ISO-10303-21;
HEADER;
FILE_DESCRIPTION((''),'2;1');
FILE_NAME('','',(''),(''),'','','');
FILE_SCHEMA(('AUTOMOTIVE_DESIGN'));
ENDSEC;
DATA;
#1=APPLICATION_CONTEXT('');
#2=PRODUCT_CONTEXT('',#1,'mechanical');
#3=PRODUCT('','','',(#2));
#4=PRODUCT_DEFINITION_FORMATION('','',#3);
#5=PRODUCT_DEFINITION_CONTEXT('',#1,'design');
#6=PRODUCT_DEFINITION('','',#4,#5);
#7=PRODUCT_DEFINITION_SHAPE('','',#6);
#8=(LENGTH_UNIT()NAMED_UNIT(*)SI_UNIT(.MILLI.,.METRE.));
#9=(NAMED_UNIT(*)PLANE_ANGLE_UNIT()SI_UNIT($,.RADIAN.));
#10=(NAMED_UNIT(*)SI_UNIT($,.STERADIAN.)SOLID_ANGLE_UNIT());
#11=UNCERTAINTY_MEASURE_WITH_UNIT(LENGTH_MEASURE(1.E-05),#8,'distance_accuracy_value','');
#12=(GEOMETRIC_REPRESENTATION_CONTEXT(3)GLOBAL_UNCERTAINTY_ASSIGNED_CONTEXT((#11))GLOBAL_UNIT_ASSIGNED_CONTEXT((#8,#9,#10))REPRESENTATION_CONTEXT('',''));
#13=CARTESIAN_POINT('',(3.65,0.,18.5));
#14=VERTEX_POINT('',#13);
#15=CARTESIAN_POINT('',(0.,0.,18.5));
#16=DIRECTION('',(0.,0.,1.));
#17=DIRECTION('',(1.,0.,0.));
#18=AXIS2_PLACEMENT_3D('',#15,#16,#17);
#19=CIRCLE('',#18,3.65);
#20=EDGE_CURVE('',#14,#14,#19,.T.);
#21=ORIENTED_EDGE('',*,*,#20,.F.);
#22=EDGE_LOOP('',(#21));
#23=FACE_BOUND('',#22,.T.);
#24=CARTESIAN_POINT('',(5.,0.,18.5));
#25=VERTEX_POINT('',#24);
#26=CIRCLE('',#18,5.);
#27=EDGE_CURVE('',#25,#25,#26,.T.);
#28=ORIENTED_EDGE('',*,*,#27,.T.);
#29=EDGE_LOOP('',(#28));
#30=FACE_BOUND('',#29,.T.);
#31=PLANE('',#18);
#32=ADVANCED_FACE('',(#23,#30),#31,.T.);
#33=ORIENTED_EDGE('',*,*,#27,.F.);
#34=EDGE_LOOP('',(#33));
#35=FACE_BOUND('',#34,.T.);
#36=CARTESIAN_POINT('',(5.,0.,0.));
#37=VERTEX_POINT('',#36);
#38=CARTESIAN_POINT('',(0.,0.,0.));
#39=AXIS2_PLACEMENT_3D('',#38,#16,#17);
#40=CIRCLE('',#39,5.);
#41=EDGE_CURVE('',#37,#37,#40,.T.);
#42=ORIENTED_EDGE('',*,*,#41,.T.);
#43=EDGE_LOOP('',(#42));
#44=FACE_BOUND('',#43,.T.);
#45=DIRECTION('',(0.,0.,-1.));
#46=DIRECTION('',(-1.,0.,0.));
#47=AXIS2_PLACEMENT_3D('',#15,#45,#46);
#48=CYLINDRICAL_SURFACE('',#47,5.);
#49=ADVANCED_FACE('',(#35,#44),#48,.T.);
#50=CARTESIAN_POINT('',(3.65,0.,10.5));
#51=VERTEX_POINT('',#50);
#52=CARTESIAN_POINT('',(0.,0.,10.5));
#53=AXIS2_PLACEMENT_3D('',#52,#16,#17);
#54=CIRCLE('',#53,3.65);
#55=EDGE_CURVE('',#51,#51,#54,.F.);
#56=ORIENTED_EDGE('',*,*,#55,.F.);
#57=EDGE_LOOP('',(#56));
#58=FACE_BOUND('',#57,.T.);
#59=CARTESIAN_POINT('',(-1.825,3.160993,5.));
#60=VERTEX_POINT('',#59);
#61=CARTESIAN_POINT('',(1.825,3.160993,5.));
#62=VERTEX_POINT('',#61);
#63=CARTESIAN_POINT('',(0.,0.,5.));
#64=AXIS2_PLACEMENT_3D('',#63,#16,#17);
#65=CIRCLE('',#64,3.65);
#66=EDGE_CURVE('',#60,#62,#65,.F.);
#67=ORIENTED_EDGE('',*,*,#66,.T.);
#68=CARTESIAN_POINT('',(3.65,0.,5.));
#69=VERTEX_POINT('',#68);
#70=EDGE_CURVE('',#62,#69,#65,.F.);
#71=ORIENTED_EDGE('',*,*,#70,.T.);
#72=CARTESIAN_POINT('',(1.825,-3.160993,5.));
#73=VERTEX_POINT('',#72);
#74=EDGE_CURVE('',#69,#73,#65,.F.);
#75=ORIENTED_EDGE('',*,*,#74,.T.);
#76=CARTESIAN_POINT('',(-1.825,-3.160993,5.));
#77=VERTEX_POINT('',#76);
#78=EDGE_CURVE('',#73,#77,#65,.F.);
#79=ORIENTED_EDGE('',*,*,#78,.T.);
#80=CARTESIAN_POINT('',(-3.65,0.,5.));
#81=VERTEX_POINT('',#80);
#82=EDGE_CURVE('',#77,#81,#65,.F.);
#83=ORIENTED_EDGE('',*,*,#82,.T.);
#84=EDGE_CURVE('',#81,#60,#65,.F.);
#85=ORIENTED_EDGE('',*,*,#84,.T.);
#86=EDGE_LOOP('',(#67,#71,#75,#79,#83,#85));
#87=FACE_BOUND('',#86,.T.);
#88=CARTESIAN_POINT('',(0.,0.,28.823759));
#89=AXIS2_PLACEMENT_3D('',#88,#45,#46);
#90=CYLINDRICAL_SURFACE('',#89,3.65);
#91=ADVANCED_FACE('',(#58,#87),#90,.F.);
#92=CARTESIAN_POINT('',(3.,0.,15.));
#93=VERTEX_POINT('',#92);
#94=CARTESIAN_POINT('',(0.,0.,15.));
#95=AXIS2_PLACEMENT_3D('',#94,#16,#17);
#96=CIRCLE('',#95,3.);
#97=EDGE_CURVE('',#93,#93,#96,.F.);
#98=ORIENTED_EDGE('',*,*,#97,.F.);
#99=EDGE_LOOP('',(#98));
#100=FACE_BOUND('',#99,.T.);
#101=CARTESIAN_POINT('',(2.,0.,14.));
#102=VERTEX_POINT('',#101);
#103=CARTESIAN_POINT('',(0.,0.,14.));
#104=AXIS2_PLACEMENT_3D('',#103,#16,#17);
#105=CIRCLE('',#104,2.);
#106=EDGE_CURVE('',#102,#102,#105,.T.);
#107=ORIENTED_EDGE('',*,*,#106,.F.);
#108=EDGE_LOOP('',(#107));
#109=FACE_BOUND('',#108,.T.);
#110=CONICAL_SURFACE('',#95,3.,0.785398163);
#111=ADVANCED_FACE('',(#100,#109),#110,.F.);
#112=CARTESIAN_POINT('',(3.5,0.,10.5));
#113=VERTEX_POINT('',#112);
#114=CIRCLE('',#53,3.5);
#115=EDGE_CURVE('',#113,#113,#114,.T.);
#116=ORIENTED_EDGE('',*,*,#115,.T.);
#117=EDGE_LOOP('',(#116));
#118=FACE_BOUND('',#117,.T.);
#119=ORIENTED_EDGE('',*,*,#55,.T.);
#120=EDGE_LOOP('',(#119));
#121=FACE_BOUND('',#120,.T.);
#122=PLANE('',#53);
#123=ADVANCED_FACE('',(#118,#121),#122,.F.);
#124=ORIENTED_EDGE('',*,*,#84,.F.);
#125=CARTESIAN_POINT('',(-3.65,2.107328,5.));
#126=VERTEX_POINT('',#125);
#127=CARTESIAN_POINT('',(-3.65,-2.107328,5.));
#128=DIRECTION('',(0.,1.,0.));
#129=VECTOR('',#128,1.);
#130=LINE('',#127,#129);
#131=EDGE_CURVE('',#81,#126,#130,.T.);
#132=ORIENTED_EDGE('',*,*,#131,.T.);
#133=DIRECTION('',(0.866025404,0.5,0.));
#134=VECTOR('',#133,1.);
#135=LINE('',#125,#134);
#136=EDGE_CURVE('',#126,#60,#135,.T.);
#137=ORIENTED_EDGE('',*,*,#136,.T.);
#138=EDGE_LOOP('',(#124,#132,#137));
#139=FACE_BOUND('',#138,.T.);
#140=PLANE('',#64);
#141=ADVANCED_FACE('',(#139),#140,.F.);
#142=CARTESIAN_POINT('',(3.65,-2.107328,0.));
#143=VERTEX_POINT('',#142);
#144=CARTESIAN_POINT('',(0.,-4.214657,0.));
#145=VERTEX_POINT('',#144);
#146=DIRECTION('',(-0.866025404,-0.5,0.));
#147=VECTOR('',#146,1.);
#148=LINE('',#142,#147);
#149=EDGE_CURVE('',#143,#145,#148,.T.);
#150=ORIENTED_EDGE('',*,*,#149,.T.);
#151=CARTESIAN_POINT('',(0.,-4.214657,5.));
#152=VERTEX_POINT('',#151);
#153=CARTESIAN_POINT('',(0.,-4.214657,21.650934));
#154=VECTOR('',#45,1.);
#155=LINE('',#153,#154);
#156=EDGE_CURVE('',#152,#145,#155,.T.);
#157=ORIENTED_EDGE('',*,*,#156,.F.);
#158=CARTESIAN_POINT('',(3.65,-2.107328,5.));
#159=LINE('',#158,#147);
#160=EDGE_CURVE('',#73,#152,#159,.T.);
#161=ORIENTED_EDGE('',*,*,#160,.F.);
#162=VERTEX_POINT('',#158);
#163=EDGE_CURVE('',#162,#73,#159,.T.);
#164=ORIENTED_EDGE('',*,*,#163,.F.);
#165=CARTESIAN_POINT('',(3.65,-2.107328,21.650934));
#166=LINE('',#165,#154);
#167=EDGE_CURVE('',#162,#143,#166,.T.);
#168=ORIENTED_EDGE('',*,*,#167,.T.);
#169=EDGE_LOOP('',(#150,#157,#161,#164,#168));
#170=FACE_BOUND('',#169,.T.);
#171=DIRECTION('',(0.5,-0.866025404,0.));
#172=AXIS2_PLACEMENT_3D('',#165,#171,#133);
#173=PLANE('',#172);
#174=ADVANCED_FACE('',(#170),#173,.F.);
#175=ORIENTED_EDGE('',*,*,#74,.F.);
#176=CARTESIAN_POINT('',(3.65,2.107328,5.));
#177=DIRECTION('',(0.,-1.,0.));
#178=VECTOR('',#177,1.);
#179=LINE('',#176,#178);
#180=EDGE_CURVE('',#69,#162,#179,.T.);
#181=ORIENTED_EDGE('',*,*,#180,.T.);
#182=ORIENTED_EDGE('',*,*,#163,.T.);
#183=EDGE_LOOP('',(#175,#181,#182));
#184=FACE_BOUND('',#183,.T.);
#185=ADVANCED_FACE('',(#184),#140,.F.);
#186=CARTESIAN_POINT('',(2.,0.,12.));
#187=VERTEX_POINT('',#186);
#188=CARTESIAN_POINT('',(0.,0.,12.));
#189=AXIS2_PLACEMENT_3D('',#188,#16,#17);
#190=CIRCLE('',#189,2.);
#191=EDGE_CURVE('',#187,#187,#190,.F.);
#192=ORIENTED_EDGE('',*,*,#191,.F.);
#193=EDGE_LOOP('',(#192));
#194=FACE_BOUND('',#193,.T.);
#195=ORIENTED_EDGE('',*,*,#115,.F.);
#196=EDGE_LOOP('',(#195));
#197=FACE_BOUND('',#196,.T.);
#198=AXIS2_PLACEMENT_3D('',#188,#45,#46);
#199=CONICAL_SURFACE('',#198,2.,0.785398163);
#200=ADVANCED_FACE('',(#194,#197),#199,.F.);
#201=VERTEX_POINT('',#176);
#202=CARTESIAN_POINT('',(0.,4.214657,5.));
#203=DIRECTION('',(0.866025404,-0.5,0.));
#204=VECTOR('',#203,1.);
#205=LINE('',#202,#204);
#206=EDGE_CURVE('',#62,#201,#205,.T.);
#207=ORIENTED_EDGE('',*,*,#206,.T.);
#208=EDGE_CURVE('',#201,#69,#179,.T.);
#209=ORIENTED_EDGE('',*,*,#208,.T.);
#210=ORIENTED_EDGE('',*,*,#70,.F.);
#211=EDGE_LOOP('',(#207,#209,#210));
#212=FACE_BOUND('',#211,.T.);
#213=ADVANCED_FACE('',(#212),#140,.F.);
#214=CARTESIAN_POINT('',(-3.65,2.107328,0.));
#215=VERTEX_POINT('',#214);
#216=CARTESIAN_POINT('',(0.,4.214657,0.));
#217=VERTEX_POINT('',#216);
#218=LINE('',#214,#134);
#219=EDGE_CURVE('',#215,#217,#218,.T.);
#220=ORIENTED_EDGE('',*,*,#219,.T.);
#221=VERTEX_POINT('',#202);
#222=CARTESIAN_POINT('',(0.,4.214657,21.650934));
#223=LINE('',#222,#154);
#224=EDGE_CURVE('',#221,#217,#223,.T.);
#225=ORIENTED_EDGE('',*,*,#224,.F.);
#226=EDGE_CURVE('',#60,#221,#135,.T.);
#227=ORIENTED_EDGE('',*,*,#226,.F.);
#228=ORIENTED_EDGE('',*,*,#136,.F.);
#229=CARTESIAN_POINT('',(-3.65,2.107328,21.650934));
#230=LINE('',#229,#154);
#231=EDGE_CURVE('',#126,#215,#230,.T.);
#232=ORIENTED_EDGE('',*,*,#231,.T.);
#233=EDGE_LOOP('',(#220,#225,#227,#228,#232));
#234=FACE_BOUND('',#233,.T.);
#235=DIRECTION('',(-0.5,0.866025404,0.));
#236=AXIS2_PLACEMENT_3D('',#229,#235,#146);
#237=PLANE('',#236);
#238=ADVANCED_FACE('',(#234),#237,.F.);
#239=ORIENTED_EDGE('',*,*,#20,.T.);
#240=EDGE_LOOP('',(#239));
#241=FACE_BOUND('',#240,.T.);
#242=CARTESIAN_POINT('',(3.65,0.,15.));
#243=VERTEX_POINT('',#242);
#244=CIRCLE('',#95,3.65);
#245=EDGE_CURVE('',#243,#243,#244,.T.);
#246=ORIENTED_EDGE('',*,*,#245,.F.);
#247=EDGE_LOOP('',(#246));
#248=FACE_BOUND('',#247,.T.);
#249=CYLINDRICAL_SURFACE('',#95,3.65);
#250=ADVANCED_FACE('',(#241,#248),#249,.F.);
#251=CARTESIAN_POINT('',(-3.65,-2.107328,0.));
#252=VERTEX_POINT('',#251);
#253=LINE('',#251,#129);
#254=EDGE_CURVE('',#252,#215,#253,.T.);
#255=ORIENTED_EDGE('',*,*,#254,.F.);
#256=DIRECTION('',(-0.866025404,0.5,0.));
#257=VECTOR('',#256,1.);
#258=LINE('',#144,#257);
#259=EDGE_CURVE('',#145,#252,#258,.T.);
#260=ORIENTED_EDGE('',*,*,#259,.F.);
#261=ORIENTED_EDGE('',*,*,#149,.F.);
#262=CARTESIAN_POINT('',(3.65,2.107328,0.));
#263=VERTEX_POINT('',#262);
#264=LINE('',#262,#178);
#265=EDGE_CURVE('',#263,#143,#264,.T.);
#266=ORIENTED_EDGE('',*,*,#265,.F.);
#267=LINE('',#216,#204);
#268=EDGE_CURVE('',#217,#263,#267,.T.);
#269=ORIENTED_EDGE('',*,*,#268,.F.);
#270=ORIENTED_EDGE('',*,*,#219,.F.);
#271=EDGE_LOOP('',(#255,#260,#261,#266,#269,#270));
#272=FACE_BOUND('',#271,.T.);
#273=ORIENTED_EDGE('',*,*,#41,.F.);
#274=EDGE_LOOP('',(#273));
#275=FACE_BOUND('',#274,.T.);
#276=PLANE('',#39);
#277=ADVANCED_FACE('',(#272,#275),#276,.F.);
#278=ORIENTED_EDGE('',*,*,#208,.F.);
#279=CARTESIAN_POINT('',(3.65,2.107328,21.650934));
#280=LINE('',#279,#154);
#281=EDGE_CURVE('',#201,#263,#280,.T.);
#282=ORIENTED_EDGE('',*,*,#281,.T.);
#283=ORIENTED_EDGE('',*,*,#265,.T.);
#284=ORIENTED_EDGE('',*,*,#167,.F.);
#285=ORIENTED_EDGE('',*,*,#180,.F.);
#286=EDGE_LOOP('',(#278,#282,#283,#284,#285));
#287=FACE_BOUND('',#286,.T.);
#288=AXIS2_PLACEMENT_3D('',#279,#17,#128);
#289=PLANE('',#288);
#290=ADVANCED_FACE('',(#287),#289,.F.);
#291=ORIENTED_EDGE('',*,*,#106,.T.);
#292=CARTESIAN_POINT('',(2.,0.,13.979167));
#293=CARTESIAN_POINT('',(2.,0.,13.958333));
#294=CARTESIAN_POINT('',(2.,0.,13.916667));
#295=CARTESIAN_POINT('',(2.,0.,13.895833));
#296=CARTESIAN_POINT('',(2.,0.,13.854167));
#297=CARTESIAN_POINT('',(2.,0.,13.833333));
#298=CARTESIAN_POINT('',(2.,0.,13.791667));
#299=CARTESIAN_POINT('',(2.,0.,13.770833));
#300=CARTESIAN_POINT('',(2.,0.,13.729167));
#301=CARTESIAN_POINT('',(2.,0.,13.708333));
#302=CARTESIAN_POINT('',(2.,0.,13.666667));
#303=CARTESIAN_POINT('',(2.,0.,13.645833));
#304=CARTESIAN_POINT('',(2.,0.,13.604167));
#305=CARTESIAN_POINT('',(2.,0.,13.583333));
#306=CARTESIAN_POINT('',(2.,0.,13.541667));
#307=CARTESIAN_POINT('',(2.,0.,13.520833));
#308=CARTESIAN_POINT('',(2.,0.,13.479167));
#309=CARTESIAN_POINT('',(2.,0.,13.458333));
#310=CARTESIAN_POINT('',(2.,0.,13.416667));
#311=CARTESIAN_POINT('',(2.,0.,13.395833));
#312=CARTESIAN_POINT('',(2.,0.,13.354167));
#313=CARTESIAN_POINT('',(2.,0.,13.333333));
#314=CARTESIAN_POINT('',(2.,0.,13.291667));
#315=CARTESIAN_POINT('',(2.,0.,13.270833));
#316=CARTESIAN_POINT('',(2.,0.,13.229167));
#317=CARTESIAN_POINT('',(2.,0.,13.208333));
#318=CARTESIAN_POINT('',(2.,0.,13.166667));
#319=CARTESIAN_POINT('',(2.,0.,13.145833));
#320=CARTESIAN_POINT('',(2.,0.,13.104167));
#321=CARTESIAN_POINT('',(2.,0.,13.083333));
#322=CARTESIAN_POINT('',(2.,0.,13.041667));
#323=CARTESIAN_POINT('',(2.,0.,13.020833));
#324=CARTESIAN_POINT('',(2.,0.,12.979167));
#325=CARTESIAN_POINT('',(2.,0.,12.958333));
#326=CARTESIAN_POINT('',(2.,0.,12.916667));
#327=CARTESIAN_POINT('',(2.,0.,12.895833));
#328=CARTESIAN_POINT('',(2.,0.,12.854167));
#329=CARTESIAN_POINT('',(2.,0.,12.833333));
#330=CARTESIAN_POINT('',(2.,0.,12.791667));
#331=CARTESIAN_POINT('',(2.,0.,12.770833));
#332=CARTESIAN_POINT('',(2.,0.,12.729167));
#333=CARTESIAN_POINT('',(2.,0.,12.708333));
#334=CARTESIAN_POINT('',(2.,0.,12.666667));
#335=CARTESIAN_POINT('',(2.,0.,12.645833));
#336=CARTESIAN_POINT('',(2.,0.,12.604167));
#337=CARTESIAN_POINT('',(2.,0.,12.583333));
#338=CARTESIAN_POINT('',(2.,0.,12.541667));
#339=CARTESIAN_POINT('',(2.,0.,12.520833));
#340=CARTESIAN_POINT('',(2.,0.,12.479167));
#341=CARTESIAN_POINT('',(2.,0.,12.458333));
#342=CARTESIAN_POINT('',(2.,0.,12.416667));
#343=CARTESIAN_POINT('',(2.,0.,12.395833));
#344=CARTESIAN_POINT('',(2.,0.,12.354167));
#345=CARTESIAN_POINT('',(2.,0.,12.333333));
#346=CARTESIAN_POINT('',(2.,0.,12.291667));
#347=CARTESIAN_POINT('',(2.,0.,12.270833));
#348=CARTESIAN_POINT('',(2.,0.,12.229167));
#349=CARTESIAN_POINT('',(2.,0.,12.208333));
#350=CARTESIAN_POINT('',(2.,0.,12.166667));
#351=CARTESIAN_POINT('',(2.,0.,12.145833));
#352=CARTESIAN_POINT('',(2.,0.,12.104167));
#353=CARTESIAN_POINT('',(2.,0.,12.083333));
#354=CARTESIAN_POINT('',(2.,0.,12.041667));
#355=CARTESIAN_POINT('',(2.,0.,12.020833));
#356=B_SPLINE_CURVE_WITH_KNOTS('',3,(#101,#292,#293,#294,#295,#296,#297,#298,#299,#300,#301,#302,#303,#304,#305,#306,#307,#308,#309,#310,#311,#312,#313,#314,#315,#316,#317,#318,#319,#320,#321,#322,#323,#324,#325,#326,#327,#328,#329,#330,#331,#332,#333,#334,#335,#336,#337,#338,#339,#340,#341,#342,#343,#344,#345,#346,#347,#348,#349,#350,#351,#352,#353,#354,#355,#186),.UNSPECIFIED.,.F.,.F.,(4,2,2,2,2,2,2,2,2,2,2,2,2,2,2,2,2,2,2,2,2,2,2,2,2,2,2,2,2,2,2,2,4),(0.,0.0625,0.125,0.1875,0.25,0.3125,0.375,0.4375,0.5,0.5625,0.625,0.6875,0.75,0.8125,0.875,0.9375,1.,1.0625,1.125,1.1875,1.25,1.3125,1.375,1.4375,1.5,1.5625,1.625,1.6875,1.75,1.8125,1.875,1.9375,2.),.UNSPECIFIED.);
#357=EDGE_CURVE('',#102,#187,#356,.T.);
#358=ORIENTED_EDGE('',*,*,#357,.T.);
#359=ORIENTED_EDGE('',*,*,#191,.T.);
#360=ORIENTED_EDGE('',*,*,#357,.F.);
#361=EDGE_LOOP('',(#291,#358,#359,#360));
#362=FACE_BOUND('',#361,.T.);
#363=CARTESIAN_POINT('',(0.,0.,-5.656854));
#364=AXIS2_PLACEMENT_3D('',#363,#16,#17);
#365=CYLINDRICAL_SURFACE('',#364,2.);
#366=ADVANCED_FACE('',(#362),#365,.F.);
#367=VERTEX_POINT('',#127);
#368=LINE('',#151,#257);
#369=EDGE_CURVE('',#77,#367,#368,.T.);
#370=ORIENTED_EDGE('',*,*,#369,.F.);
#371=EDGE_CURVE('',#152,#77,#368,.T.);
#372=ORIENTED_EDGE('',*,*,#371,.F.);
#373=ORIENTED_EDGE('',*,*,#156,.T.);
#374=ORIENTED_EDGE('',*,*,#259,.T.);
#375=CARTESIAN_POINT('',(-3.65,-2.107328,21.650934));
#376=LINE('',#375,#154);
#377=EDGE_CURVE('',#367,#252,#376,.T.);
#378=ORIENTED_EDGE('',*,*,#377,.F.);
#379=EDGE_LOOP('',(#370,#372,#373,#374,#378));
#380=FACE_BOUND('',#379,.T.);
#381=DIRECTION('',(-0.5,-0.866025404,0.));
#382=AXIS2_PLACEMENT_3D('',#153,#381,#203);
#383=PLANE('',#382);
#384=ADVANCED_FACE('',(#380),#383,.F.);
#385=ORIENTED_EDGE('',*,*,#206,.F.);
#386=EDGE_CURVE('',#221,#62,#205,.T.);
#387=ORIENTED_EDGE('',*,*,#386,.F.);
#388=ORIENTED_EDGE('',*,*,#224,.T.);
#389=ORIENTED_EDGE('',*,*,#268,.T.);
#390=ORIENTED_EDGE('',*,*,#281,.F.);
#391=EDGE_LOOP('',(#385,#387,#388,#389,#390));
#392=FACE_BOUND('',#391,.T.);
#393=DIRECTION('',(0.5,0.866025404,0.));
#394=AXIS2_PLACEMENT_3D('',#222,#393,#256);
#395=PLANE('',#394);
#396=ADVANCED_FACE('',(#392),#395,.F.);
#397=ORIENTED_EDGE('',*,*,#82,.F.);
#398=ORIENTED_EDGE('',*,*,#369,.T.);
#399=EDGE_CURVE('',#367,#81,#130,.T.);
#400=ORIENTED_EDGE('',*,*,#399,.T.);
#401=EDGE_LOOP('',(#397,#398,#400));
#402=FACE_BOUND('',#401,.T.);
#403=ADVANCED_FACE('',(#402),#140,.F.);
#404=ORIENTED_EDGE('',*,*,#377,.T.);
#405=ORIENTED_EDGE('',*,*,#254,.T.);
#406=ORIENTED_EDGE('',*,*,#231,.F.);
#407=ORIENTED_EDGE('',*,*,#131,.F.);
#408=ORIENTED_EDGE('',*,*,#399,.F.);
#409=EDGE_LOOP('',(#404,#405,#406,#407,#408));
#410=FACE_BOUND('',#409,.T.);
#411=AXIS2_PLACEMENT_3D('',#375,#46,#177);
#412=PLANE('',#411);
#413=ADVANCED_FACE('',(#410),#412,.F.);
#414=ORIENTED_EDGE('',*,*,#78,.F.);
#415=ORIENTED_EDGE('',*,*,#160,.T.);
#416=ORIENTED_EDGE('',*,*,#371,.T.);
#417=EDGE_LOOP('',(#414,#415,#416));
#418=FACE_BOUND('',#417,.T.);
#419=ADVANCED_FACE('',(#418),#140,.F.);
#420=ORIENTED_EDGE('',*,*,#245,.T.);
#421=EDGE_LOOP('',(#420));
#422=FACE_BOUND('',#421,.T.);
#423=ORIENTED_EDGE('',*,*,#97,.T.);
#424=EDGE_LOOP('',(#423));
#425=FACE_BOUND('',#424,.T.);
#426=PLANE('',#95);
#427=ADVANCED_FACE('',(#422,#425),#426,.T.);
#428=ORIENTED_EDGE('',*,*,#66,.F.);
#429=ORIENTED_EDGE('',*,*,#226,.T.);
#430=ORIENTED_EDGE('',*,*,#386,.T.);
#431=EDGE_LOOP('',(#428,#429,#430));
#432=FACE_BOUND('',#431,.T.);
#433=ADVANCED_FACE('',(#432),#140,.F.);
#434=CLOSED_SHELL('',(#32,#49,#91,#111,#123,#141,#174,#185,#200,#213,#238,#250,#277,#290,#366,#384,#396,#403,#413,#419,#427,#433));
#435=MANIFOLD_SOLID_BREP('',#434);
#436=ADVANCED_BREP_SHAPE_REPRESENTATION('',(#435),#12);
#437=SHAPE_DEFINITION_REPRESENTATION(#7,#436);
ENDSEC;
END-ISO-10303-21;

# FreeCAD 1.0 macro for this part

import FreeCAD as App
import Part
import Sketcher
from FreeCAD import Vector
Q = App.Units.Quantity


def edges_at(feature, points):
    """Names of the edges that pass closest to the given points."""
    edges = feature.Shape.Edges
    near = lambda p: min(range(len(edges)), key=lambda i: edges[i].distToShape(Part.Vertex(*p))[0])
    return sorted({f"Edge{near(p) + 1}" for p in points})


def add_polygon(sketch, points):
    """Adds a closed chain of lines whose ends are joined by coincident constraints."""
    first, n = sketch.GeometryCount, len(points)
    for a, b in zip(points, points[1:] + points[:1]):
        sketch.addGeometry(Part.LineSegment(App.Vector(*a, 0), App.Vector(*b, 0)), False)
    for i in range(n):
        sketch.addConstraint(Sketcher.Constraint("Coincident", first + i, 2, first + (i + 1) % n, 1))

doc = App.newDocument("Part")
body = doc.addObject("PartDesign::Body", "Body")

sketch1 = body.newObject("Sketcher::SketchObject", "Sketch")
sketch1.AttachmentSupport = (doc.getObject("XY_Plane"), [""])
sketch1.MapMode = "FlatFace"
sketch1.addGeometry(Part.Circle(Vector(0, 0, 0), Vector(0, 0, 1), 5), False)
sketch1.addConstraint([
    Sketcher.Constraint("Coincident", 0, 3, -1, 1),
    Sketcher.Constraint("Diameter", 0, Q("10 mm")),
])
pad1 = body.newObject("PartDesign::Pad", "Pad")
pad1.Profile = sketch1
pad1.Length = 18.5

sketch2 = body.newObject("Sketcher::SketchObject", "Sketch001")
sketch2.AttachmentSupport = (doc.getObject("XY_Plane"), [""])
sketch2.MapMode = "FlatFace"
sketch2.AttachmentOffset = App.Placement(Vector(0, 0, 18.5), App.Rotation())
sketch2.addGeometry(Part.Circle(Vector(0, 0, 0), Vector(0, 0, 1), 2), False)
sketch2.addConstraint([
    Sketcher.Constraint("Coincident", 0, 3, -1, 1),
    Sketcher.Constraint("Diameter", 0, Q("4 mm")),
])
pocket1 = body.newObject("PartDesign::Pocket", "Pocket")
pocket1.Profile = sketch2
pocket1.Length = 18.5

sketch3 = body.newObject("Sketcher::SketchObject", "Sketch002")
sketch3.AttachmentSupport = (doc.getObject("XY_Plane"), [""])
sketch3.MapMode = "FlatFace"
sketch3.AttachmentOffset = App.Placement(Vector(0, 0, 18.5), App.Rotation())
sketch3.addGeometry(Part.Circle(Vector(0, 0, 0), Vector(0, 0, 1), 3.6), False)
sketch3.addConstraint([
    Sketcher.Constraint("Coincident", 0, 3, -1, 1),
    Sketcher.Constraint("Diameter", 0, Q("7.3 mm")),
])
pocket2 = body.newObject("PartDesign::Pocket", "Pocket001")
pocket2.Profile = sketch3
pocket2.Length = 3.5

sketch4 = body.newObject("Sketcher::SketchObject", "Sketch003")
sketch4.AttachmentSupport = (doc.getObject("XY_Plane"), [""])
sketch4.MapMode = "FlatFace"
sketch4.AttachmentOffset = App.Placement(Vector(0, 0, 10.5), App.Rotation())
sketch4.addGeometry(Part.Circle(Vector(0, 0, 0), Vector(0, 0, 1), 3.6), False)
sketch4.addConstraint([
    Sketcher.Constraint("Coincident", 0, 3, -1, 1),
    Sketcher.Constraint("Diameter", 0, Q("7.3 mm")),
])
pocket3 = body.newObject("PartDesign::Pocket", "Pocket002")
pocket3.Profile = sketch4
pocket3.Length = 10.5
doc.recompute()

chamfer = body.newObject("PartDesign::Chamfer", "Chamfer")
chamfer.Base = (pocket3, edges_at(pocket3, [(-2, 0, 10.5)]))
chamfer.Size = 1.5
doc.recompute()

chamfer2 = body.newObject("PartDesign::Chamfer", "Chamfer001")
chamfer2.Base = (chamfer, edges_at(chamfer, [(-2, 0, 15)]))
chamfer2.Size = 1

sketch5 = body.newObject("Sketcher::SketchObject", "Sketch004")
sketch5.AttachmentSupport = (doc.getObject("XY_Plane"), [""])
sketch5.MapMode = "FlatFace"
add_polygon(sketch5, [(0, 4.2), (3.6, 2.1), (3.6, -2.1), (0, -4.2), (-3.6, -2.1), (-3.6, 2.1)])
sketch5.addConstraint([
    Sketcher.Constraint("Vertical", 1),
    Sketcher.Constraint("Vertical", 4),
    Sketcher.Constraint("Symmetric", 0, 2, 3, 2, -1, 1),
    Sketcher.Constraint("Symmetric", 2, 2, 5, 2, -1, 1),
    Sketcher.Constraint("PointOnObject", 2, 2, -2),
    Sketcher.Constraint("Parallel", 2, 5),
    Sketcher.Constraint("Horizontal", 1, 2, 3, 2),
    Sketcher.Constraint("Angle", 0, Q("-30 deg")),
    Sketcher.Constraint("DistanceX", 3, 2, 1, 2, Q("7.3 mm")),
    Sketcher.Constraint("DistanceY", 1, 2, 1, 1, Q("4.214657 mm")),
])
pocket4 = body.newObject("PartDesign::Pocket", "Pocket003")
pocket4.Profile = sketch5
pocket4.Length = 5
pocket4.Reversed = True

doc.recompute()
